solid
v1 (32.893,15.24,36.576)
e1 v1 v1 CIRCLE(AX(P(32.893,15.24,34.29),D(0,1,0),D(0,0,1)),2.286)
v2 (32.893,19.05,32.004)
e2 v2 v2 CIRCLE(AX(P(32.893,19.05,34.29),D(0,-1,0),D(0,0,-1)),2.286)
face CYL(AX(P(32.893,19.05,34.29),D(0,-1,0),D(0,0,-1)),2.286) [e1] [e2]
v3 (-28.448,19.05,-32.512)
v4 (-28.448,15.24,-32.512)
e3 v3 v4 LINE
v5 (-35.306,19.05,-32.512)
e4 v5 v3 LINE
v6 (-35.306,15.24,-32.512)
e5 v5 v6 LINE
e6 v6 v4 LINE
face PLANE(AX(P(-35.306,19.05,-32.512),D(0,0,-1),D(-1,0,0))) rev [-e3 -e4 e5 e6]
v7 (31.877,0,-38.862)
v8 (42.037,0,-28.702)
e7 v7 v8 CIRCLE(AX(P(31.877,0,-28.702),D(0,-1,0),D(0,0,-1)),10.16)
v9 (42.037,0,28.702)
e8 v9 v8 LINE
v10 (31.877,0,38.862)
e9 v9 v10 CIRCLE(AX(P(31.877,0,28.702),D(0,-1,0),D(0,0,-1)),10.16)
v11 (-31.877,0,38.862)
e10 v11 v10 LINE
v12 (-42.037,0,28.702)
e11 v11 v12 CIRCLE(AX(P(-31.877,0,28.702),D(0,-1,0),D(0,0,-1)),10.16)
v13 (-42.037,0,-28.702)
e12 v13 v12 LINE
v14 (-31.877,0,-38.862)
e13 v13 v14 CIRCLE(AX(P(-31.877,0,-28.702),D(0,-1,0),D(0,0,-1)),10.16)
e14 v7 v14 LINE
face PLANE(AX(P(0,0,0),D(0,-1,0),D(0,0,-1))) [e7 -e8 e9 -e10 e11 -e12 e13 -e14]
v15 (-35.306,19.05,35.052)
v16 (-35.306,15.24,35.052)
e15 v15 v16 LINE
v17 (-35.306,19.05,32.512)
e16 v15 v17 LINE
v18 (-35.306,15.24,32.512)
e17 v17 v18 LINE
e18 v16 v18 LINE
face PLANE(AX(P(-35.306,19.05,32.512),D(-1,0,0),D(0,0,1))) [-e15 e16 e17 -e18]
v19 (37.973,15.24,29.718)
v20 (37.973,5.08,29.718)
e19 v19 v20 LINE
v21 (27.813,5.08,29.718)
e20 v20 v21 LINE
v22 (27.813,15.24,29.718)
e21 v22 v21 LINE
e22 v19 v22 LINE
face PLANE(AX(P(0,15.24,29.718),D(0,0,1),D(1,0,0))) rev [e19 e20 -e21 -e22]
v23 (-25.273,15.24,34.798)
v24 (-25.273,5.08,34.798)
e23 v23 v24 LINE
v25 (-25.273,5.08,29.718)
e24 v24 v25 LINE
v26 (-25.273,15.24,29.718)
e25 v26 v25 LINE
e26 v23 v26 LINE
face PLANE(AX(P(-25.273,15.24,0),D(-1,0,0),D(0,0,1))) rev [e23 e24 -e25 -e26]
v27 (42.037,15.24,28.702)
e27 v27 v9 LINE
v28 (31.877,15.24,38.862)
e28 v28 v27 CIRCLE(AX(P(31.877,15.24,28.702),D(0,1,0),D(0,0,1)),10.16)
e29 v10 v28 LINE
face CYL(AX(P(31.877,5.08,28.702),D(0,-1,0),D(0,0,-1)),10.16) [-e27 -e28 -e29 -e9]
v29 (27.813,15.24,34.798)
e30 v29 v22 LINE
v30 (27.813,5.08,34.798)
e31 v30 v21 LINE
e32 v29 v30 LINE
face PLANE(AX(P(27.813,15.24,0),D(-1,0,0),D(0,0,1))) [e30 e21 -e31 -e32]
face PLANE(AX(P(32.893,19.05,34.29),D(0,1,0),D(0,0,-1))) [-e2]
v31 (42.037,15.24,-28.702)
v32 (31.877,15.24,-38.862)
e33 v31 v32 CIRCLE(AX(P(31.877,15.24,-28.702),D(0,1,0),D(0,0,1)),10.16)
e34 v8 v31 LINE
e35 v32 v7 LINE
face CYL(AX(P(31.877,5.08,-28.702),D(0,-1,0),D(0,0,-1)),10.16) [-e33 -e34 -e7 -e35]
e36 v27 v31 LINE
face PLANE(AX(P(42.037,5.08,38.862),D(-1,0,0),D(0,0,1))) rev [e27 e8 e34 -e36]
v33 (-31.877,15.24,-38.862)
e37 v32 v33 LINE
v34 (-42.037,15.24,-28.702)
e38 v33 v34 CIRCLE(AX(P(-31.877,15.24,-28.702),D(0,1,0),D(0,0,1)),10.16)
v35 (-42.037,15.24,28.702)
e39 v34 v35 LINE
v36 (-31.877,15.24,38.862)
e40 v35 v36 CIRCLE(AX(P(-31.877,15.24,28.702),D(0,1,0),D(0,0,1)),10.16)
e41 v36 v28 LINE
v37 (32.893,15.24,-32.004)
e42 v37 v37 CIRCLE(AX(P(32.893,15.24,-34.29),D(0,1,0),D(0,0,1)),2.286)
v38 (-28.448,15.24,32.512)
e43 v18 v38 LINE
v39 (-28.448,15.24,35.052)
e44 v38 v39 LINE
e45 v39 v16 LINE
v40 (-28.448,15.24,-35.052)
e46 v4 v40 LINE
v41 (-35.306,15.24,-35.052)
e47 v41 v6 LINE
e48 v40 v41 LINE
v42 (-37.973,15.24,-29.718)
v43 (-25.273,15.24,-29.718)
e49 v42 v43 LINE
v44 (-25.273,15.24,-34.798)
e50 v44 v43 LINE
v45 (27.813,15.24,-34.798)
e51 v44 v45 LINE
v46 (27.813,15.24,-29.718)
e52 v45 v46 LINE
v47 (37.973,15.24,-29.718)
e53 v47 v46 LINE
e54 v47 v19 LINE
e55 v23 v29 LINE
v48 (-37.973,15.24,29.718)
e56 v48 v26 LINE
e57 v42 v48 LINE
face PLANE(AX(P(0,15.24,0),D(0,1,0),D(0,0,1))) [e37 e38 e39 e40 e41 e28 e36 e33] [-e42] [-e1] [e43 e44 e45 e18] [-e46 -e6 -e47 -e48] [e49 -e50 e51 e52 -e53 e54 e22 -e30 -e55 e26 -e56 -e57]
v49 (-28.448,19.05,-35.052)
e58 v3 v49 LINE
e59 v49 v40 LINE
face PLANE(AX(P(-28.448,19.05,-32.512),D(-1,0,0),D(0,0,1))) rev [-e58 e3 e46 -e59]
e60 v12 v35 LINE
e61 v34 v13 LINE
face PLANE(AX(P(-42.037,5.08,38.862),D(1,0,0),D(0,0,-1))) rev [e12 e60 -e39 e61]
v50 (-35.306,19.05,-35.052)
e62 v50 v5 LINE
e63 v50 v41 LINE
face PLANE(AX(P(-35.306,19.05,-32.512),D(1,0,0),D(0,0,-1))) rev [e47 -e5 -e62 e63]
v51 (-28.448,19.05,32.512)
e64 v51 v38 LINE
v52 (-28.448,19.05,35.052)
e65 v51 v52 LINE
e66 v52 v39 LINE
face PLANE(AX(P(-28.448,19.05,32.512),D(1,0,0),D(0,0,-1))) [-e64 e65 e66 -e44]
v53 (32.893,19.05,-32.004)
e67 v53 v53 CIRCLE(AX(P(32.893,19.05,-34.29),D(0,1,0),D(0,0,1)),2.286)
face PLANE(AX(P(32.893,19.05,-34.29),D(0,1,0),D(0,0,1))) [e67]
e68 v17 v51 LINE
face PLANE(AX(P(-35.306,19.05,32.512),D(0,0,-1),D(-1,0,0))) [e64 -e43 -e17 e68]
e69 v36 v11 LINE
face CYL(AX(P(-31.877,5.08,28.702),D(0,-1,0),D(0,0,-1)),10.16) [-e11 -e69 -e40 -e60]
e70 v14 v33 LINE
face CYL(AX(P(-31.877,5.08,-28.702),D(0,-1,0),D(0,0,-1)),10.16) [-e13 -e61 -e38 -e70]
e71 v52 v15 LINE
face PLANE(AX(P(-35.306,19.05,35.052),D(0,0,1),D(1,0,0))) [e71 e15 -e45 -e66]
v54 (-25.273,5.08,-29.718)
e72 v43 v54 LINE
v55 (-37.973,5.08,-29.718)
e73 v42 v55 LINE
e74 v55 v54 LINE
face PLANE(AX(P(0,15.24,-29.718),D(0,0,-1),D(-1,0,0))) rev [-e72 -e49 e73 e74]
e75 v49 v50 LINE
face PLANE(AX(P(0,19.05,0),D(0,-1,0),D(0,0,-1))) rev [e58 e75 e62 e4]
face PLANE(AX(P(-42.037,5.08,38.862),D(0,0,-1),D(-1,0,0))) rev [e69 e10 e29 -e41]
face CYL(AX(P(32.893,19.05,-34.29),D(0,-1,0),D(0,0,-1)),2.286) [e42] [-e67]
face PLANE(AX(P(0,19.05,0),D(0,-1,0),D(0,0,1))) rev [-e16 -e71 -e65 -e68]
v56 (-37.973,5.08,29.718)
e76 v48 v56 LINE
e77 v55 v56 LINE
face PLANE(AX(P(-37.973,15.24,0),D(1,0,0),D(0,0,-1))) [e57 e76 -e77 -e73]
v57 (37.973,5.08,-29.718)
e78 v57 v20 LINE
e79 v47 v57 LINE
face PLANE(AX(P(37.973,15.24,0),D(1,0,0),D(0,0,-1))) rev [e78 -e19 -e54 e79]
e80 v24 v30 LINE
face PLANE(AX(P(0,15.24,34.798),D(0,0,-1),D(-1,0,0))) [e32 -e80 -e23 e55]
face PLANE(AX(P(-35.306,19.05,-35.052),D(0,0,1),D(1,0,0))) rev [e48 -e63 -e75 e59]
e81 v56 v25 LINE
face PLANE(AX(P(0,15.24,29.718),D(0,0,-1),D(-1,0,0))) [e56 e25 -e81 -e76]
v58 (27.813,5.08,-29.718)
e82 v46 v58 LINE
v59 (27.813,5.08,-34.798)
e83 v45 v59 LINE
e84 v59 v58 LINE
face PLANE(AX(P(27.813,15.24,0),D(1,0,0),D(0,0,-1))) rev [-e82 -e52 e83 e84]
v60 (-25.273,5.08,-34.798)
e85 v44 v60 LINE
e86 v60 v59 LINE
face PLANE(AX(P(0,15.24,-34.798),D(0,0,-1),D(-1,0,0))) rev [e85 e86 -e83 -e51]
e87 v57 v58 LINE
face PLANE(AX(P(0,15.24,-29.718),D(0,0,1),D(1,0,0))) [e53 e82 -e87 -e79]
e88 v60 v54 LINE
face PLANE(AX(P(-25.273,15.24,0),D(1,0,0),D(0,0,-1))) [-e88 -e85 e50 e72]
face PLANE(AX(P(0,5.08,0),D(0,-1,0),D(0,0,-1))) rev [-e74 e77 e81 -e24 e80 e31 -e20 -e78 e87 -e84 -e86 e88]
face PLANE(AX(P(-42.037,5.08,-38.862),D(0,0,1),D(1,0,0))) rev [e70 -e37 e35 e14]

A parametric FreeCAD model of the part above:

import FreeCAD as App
import Part
import Sketcher

V = App.Vector
Q = App.Units.Quantity


def edges_at(feature, points):
    """Names of the edges that pass closest to the given points."""
    edges = feature.Shape.Edges
    near = lambda p: min(range(len(edges)), key=lambda i: edges[i].distToShape(Part.Vertex(*p))[0])
    return sorted({f"Edge{near(p) + 1}" for p in points})


def add_polygon(sketch, points):
    """Adds a closed chain of lines whose ends are joined by coincident constraints."""
    first, n = sketch.GeometryCount, len(points)
    for a, b in zip(points, points[1:] + points[:1]):
        sketch.addGeometry(Part.LineSegment(App.Vector(*a, 0), App.Vector(*b, 0)), False)
    for i in range(n):
        sketch.addConstraint(Sketcher.Constraint("Coincident", first + i, 2, first + (i + 1) % n, 1))

doc = App.newDocument("Part")
body = doc.addObject("PartDesign::Body", "Body")

sketch1 = body.newObject("Sketcher::SketchObject", "Sketch")
sketch1.AttachmentSupport = (doc.getObject("XZ_Plane"), [""])
sketch1.MapMode = "FlatFace"
add_polygon(sketch1, [(-42.037, -38.862), (-42.037, 38.862), (42.037, 38.862), (42.037, -38.862)])
sketch1.addConstraint([
    Sketcher.Constraint("Vertical", 0),
    Sketcher.Constraint("Horizontal", 1),
    Sketcher.Constraint("Vertical", 2),
    Sketcher.Constraint("Horizontal", 3),
    Sketcher.Constraint("Symmetric", 0, 2, 2, 2, -1, 1),
    Sketcher.Constraint("DistanceX", 1, 1, 1, 2, Q("3.31 in")),
    Sketcher.Constraint("DistanceY", 0, 1, 0, 2, Q("3.06 in")),
])
pad1 = body.newObject("PartDesign::Pad", "Pad")
pad1.Profile = sketch1
pad1.Length = Q("0.2 in")
pad1.Reversed = True

sketch2 = body.newObject("Sketcher::SketchObject", "Sketch001")
sketch2.AttachmentSupport = (doc.getObject("XZ_Plane"), [""])
sketch2.MapMode = "FlatFace"
sketch2.AttachmentOffset = App.Placement(V(0, 0, -0.2 * 25.4), App.Rotation())
add_polygon(sketch2, [(-42.037, -38.862), (-42.037, 38.862), (42.037, 38.862), (42.037, -38.862)])
add_polygon(sketch2, [(-25.273, 29.718), (-37.973, 29.718), (-37.973, -29.718), (-25.273, -29.718), (-25.273, -34.798), (27.813, -34.798), (27.813, -29.718), (37.973, -29.718), (37.973, 29.718), (27.813, 29.718), (27.813, 34.798), (-25.273, 34.798)])
sketch2.addConstraint([
    Sketcher.Constraint("Vertical", 0),
    Sketcher.Constraint("Horizontal", 1),
    Sketcher.Constraint("Vertical", 2),
    Sketcher.Constraint("Horizontal", 3),
    Sketcher.Constraint("Horizontal", 4),
    Sketcher.Constraint("Vertical", 5),
    Sketcher.Constraint("Horizontal", 6),
    Sketcher.Constraint("Vertical", 7),
    Sketcher.Constraint("Horizontal", 8),
    Sketcher.Constraint("Vertical", 9),
    Sketcher.Constraint("Horizontal", 10),
    Sketcher.Constraint("Vertical", 11),
    Sketcher.Constraint("Horizontal", 12),
    Sketcher.Constraint("Vertical", 13),
    Sketcher.Constraint("Horizontal", 14),
    Sketcher.Constraint("Vertical", 15),
    Sketcher.Constraint("Symmetric", 0, 2, 2, 2, -1, 1),
    Sketcher.Constraint("Symmetric", 4, 2, 10, 2, -1, 1),
    Sketcher.Constraint("Symmetric", 9, 2, 12, 2, -1),
    Sketcher.Constraint("Symmetric", 7, 2, 14, 2, -1),
    Sketcher.Constraint("Horizontal", 6, 2, 9, 2),
    Sketcher.Constraint("DistanceX", 4, 2, 4, 1, Q("0.5 in")),
    Sketcher.Constraint("DistanceX", 10, 1, 10, 2, Q("0.4 in")),
    Sketcher.Constraint("DistanceY", 7, 2, 7, 1, Q("0.2 in")),
    Sketcher.Constraint("DistanceX", 1, 1, 1, 2, Q("3.31 in")),
    Sketcher.Constraint("DistanceX", 8, 1, 8, 2, Q("2.09 in")),
    Sketcher.Constraint("DistanceY", 0, 1, 0, 2, Q("3.06 in")),
    Sketcher.Constraint("DistanceY", 5, 2, 5, 1, Q("2.34 in")),
])
pad2 = body.newObject("PartDesign::Pad", "Pad001")
pad2.Profile = sketch2
pad2.Length = Q("0.4 in")
pad2.Reversed = True
doc.recompute()

fillet = body.newObject("PartDesign::Fillet", "Fillet")
fillet.Base = (pad2, edges_at(pad2, [
    (42.037, 7.62, 38.862),
    (-42.037, 7.62, 38.862),
    (-42.037, 7.62, -38.862),
    (42.037, 7.62, -38.862),
]))
fillet.Radius = Q("0.4 in")

sketch3 = body.newObject("Sketcher::SketchObject", "Sketch002")
sketch3.AttachmentSupport = (doc.getObject("XZ_Plane"), [""])
sketch3.MapMode = "FlatFace"
sketch3.AttachmentOffset = App.Placement(V(0, 0, -0.6 * 25.4), App.Rotation())
sketch3.addGeometry(Part.Circle(V(32.893, -34.29, 0), V(0, 0, 1), 2.286), False)
add_polygon(sketch3, [(-35.306, -35.052), (-35.306, -32.512), (-28.448, -32.512), (-28.448, -35.052)])
sketch3.addConstraint([
    Sketcher.Constraint("Vertical", 1),
    Sketcher.Constraint("Horizontal", 2),
    Sketcher.Constraint("Vertical", 3),
    Sketcher.Constraint("Horizontal", 4),
    Sketcher.Constraint("Diameter", 0, Q("0.18 in")),
    Sketcher.Constraint("DistanceY", 1, 1, 1, 2, Q("0.1 in")),
    Sketcher.Constraint("DistanceX", 2, 1, 2, 2, Q("0.27 in")),
    Sketcher.Constraint("DistanceY", 0, 3, -1, 1, Q("1.35 in")),
    Sketcher.Constraint("DistanceX", 1, 2, -1, 1, Q("1.39 in")),
    Sketcher.Constraint("DistanceY", 1, 2, -1, 1, Q("1.28 in")),
    Sketcher.Constraint("DistanceX", -1, 1, 0, 3, Q("1.295 in")),
])
pad3 = body.newObject("PartDesign::Pad", "Pad002")
pad3.Profile = sketch3
pad3.Length = Q("0.15 in")
pad3.Reversed = True
doc.recompute()

mirrored = body.newObject("PartDesign::Mirrored", "Mirrored")
mirrored.Originals = [pad3]
mirrored.MirrorPlane = (doc.getObject("XY_Plane"), [""])
body.Tip = mirrored

doc.recompute()
